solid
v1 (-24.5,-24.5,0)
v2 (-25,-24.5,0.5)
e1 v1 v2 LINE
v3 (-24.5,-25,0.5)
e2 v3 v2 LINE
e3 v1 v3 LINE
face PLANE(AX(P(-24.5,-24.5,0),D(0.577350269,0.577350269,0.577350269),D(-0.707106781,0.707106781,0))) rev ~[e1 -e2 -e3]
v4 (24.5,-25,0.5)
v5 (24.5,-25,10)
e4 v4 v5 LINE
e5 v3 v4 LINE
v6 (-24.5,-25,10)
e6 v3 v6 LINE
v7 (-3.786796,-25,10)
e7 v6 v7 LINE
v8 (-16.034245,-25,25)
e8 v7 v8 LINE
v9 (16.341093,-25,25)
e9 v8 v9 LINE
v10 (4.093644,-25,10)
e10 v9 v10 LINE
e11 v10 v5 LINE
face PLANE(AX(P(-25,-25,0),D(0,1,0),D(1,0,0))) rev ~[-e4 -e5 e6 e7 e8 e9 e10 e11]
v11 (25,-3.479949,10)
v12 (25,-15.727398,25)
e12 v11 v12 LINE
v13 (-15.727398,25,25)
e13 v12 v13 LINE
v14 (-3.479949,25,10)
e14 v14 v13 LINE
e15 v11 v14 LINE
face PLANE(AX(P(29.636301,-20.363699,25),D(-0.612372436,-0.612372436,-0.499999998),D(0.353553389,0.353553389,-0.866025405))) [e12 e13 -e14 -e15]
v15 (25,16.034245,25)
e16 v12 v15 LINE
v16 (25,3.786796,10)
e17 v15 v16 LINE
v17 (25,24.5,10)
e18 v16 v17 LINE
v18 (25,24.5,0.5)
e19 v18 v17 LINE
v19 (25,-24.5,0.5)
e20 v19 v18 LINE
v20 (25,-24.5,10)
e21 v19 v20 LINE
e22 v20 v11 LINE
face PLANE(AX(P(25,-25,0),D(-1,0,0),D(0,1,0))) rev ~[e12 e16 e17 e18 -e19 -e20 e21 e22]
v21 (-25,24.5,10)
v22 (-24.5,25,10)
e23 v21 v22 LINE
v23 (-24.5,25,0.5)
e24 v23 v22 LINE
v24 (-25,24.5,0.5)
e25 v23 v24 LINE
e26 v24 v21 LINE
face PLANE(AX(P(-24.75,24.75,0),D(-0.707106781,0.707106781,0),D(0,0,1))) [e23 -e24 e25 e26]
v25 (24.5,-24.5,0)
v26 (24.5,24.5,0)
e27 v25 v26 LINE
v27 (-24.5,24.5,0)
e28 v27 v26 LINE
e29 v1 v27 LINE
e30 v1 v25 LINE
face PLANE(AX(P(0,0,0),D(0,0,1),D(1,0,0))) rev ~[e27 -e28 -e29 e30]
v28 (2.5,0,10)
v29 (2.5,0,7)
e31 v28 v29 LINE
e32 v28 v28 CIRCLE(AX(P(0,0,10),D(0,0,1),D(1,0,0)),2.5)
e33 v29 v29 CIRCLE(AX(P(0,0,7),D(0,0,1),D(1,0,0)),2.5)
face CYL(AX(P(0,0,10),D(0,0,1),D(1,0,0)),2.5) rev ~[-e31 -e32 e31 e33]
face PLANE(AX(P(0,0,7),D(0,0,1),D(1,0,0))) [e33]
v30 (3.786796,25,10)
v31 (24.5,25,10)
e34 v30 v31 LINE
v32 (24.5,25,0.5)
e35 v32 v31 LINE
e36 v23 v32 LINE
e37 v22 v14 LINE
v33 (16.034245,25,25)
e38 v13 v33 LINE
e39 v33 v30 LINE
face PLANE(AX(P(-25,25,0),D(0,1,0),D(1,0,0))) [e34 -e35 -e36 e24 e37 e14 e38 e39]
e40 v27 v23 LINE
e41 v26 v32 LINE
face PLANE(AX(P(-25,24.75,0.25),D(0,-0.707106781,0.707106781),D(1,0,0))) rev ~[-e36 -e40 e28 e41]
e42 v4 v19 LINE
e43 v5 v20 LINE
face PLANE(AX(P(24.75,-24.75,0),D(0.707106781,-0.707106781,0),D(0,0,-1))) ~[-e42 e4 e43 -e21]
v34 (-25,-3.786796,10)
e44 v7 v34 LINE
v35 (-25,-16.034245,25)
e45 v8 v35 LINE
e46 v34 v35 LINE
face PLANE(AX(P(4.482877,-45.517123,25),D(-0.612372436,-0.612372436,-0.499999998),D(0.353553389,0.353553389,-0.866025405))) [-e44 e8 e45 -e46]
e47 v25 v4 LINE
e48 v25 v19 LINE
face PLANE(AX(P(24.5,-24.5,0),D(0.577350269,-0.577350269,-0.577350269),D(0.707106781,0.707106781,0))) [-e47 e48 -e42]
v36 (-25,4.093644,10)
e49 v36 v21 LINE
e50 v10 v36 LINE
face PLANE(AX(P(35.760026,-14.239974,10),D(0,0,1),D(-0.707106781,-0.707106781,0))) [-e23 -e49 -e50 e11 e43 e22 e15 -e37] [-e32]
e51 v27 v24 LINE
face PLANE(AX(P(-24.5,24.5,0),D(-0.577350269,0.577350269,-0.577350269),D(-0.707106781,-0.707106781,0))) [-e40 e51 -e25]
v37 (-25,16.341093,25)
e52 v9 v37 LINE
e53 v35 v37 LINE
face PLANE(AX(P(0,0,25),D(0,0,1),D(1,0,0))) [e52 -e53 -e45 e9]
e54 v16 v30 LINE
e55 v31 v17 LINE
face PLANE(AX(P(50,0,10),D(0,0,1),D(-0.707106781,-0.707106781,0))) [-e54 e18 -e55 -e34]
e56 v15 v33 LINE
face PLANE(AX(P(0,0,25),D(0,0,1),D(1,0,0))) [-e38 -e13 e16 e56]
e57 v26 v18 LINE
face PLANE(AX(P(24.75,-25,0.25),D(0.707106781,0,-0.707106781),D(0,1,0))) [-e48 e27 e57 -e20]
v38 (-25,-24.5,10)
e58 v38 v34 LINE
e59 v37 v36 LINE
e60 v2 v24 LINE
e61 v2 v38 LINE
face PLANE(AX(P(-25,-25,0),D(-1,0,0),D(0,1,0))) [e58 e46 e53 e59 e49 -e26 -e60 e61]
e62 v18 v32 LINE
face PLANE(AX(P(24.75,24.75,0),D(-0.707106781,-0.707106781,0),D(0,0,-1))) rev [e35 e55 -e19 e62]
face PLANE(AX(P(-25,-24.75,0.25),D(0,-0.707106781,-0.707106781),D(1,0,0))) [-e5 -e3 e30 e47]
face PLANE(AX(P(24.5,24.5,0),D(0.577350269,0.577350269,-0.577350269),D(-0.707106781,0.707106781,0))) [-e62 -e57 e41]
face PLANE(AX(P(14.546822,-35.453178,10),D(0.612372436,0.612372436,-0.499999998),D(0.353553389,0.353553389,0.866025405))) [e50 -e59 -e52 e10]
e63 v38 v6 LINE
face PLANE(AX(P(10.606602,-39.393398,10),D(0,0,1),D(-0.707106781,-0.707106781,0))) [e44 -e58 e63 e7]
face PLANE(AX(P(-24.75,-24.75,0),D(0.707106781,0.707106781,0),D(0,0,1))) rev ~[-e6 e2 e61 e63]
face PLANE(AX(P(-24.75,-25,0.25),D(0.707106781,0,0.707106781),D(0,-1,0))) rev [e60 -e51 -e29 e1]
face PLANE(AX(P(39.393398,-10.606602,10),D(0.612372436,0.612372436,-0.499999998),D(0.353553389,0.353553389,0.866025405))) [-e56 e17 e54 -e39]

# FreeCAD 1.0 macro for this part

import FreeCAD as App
import Part
import Sketcher

V = App.Vector
Q = App.Units.Quantity


def edges_at(feature, points):
    """Names of the edges that pass closest to the given points."""
    edges = feature.Shape.Edges
    near = lambda p: min(range(len(edges)), key=lambda i: edges[i].distToShape(Part.Vertex(*p))[0])
    return sorted({f"Edge{near(p) + 1}" for p in points})

doc = App.newDocument("Part")
body = doc.addObject("PartDesign::Body", "Body")

# Sketch on XY plane
sketch1 = doc.addObject("Sketcher::SketchObject", "Sketch")
body.addObject(sketch1)
sketch1.AttachmentSupport = (doc.XY_Plane, [""])
sketch1.MapMode = "FlatFace"
sketch1.addGeometry(Part.LineSegment(V(-25, 25, 0), V(-25, -25, 0)), False)
sketch1.addGeometry(Part.LineSegment(V(-25, -25, 0), V(25, -25, 0)), False)
sketch1.addGeometry(Part.LineSegment(V(25, -25, 0), V(25, 25, 0)), False)
sketch1.addGeometry(Part.LineSegment(V(25, 25, 0), V(-25, 25, 0)), False)
sketch1.addConstraint(Sketcher.Constraint("Coincident", 0, 2, 1, 1))
sketch1.addConstraint(Sketcher.Constraint("Coincident", 1, 2, 2, 1))
sketch1.addConstraint(Sketcher.Constraint("Coincident", 2, 2, 3, 1))
sketch1.addConstraint(Sketcher.Constraint("Coincident", 3, 2, 0, 1))
sketch1.addConstraint(Sketcher.Constraint("Vertical", 0))
sketch1.addConstraint(Sketcher.Constraint("Horizontal", 1))
sketch1.addConstraint(Sketcher.Constraint("Vertical", 2))
sketch1.addConstraint(Sketcher.Constraint("Horizontal", 3))
sketch1.addConstraint(Sketcher.Constraint("Symmetric", 0, 2, 2, 2, -1, 1))
sketch1.addConstraint(Sketcher.Constraint("Equal", 3, 0))
sketch1.addConstraint(Sketcher.Constraint("DistanceX", 1, 1, 1, 2, 50.0))
pad1 = doc.addObject("PartDesign::Pad", "Pad")
body.addObject(pad1)
pad1.Profile = sketch1
pad1.Length = 25

# Sketch on an angled plane
sketch2 = doc.addObject("Sketcher::SketchObject", "Sketch001")
body.addObject(sketch2)
sketch2.Placement = App.Placement(V(25, -25, 0), App.Rotation(V(-0.707106781, -0.707106781, 0), V(0, 0, 0.999999999), V(-0.707106781, 0.707106781, 0), "ZXY"))
sketch2.addGeometry(Part.LineSegment(V(35.355339, 25, 0), V(29.015593, 25, 0)), False)
sketch2.addGeometry(Part.LineSegment(V(29.015593, 25, 0), V(20.355339, 10, 0)), False)
sketch2.addGeometry(Part.LineSegment(V(20.355339, 10, 0), V(35.355339, 10, 0)), False)
sketch2.addGeometry(Part.LineSegment(V(35.355339, 10, 0), V(35.355339, 25, 0)), False)
sketch2.addGeometry(Part.LineSegment(V(-20.355339, 10, 0), V(-29.015593, 25, 0)), False)
sketch2.addGeometry(Part.LineSegment(V(-29.015593, 25, 0), V(-35.355339, 25, 0)), False)
sketch2.addGeometry(Part.LineSegment(V(-35.355339, 25, 0), V(-35.355339, 10, 0)), False)
sketch2.addGeometry(Part.LineSegment(V(-35.355339, 10, 0), V(-20.355339, 10, 0)), False)
sketch2.addGeometry(Part.LineSegment(V(6.122772, 25, 0), V(-6.55672, 25, 0)), False)
sketch2.addGeometry(Part.LineSegment(V(-6.55672, 25, 0), V(-15.216974, 10, 0)), False)
sketch2.addGeometry(Part.LineSegment(V(-15.216974, 10, 0), V(14.783026, 10, 0)), False)
sketch2.addGeometry(Part.LineSegment(V(14.783026, 10, 0), V(6.122772, 25, 0)), False)
sketch2.addConstraint(Sketcher.Constraint("Coincident", 0, 2, 1, 1))
sketch2.addConstraint(Sketcher.Constraint("Coincident", 1, 2, 2, 1))
sketch2.addConstraint(Sketcher.Constraint("Coincident", 2, 2, 3, 1))
sketch2.addConstraint(Sketcher.Constraint("Coincident", 3, 2, 0, 1))
sketch2.addConstraint(Sketcher.Constraint("Coincident", 4, 2, 5, 1))
sketch2.addConstraint(Sketcher.Constraint("Coincident", 5, 2, 6, 1))
sketch2.addConstraint(Sketcher.Constraint("Coincident", 6, 2, 7, 1))
sketch2.addConstraint(Sketcher.Constraint("Coincident", 7, 2, 4, 1))
sketch2.addConstraint(Sketcher.Constraint("Coincident", 8, 2, 9, 1))
sketch2.addConstraint(Sketcher.Constraint("Coincident", 9, 2, 10, 1))
sketch2.addConstraint(Sketcher.Constraint("Coincident", 10, 2, 11, 1))
sketch2.addConstraint(Sketcher.Constraint("Coincident", 11, 2, 8, 1))
sketch2.addConstraint(Sketcher.Constraint("Horizontal", 0))
sketch2.addConstraint(Sketcher.Constraint("Horizontal", 2))
sketch2.addConstraint(Sketcher.Constraint("Vertical", 3))
sketch2.addConstraint(Sketcher.Constraint("Horizontal", 5))
sketch2.addConstraint(Sketcher.Constraint("Vertical", 6))
sketch2.addConstraint(Sketcher.Constraint("Horizontal", 7))
sketch2.addConstraint(Sketcher.Constraint("Horizontal", 8))
sketch2.addConstraint(Sketcher.Constraint("Horizontal", 10))
sketch2.addConstraint(Sketcher.Constraint("Symmetric", 0, 2, 4, 2, -2))
sketch2.addConstraint(Sketcher.Constraint("Symmetric", 2, 2, 6, 2, -2))
sketch2.addConstraint(Sketcher.Constraint("Parallel", 1, 9))
sketch2.addConstraint(Sketcher.Constraint("Parallel", 4, 11))
sketch2.addConstraint(Sketcher.Constraint("Horizontal", 5, 2, 8, 2))
sketch2.addConstraint(Sketcher.Constraint("Horizontal", 7, 2, 9, 2))
sketch2.addConstraint(Sketcher.Constraint("Equal", 2, 7))
sketch2.addConstraint(Sketcher.Constraint("Equal", 7, 3))
sketch2.addConstraint(Sketcher.Constraint("DistanceX", 2, 1, 2, 2, 15.0))
sketch2.addConstraint(Sketcher.Constraint("DistanceX", 10, 1, 10, 2, 30.0))
sketch2.addConstraint(Sketcher.Constraint("Angle", 1, Q("-120 deg")))
sketch2.addConstraint(Sketcher.Constraint("DistanceY", -1, 1, 0, 2, 25.0))
sketch2.addConstraint(Sketcher.Constraint("DistanceX", -1, 1, 1, 2, 20.355339))
sketch2.addConstraint(Sketcher.Constraint("DistanceX", 8, 2, -1, 1, 6.55672))
pocket1 = doc.addObject("PartDesign::Pocket", "Pocket")
body.addObject(pocket1)
pocket1.Profile = sketch2
pocket1.Type = "ThroughAll"
pocket1.Reversed = True
doc.recompute()

chamfer = doc.addObject("PartDesign::Chamfer", "Chamfer")
body.addObject(chamfer)
chamfer.Base = (pocket1, edges_at(pocket1, [
    (-25, 25, 5),
    (25, 25, 5),
    (25, -25, 5),
    (-25, -25, 5),
    (0, -25, 0),
    (25, 0, 0),
    (0, 25, 0),
    (-25, 0, 0),
]))
chamfer.Size = 0.5

# Sketch on XY plane
sketch3 = doc.addObject("Sketcher::SketchObject", "Sketch002")
body.addObject(sketch3)
sketch3.AttachmentSupport = (doc.XY_Plane, [""])
sketch3.MapMode = "FlatFace"
sketch3.AttachmentOffset = App.Placement(V(0, 0, 10), App.Rotation())
sketch3.addGeometry(Part.Circle(V(0, 0, 0), V(0, 0, 1), 2.5), False)
sketch3.addConstraint(Sketcher.Constraint("Coincident", 0, 3, -1, 1))
sketch3.addConstraint(Sketcher.Constraint("Diameter", 0, 5.0))
pocket2 = doc.addObject("PartDesign::Pocket", "Pocket001")
body.addObject(pocket2)
pocket2.Profile = sketch3
pocket2.Length = 3
body2 = doc.addObject("PartDesign::Body", "Body001")

# Sketch on XY plane
sketch4 = doc.addObject("Sketcher::SketchObject", "Sketch003")
body2.addObject(sketch4)
sketch4.AttachmentSupport = (doc.getObject("XY_Plane001"), [""])
sketch4.MapMode = "FlatFace"
sketch4.AttachmentOffset = App.Placement(V(0, 0, 10), App.Rotation())
sketch4.addGeometry(Part.LineSegment(V(-25, 25, 0), V(-25, -25, 0)), False)
sketch4.addGeometry(Part.LineSegment(V(-25, -25, 0), V(25, -25, 0)), False)
sketch4.addGeometry(Part.LineSegment(V(25, -25, 0), V(25, 25, 0)), False)
sketch4.addGeometry(Part.LineSegment(V(25, 25, 0), V(-25, 25, 0)), False)
sketch4.addConstraint(Sketcher.Constraint("Coincident", 0, 2, 1, 1))
sketch4.addConstraint(Sketcher.Constraint("Coincident", 1, 2, 2, 1))
sketch4.addConstraint(Sketcher.Constraint("Coincident", 2, 2, 3, 1))
sketch4.addConstraint(Sketcher.Constraint("Coincident", 3, 2, 0, 1))
sketch4.addConstraint(Sketcher.Constraint("Vertical", 0))
sketch4.addConstraint(Sketcher.Constraint("Horizontal", 1))
sketch4.addConstraint(Sketcher.Constraint("Vertical", 2))
sketch4.addConstraint(Sketcher.Constraint("Horizontal", 3))
sketch4.addConstraint(Sketcher.Constraint("Symmetric", 0, 2, 2, 2, -1, 1))
sketch4.addConstraint(Sketcher.Constraint("Equal", 3, 0))
sketch4.addConstraint(Sketcher.Constraint("DistanceX", 1, 1, 1, 2, 50.0))
pad2 = doc.addObject("PartDesign::Pad", "Pad001")
body2.addObject(pad2)
pad2.Profile = sketch4
pad2.Length = 25
doc.recompute()

body3 = doc.addObject("PartDesign::Body", "Body002")
body3.BaseFeature = body
boolean = doc.addObject("PartDesign::Boolean", "Boolean")
body2.addObject(boolean)
boolean.Type = "Cut"
boolean.addObjects([body3])
doc.recompute()
body4 = doc.addObject("PartDesign::Body", "Body003")
doc.recompute()

body2.Placement = App.Placement(V(55, 0, 0), App.Rotation(V(0, 0, 1), 0))
boolean2 = doc.addObject("PartDesign::Boolean", "Boolean001")
body4.addObject(boolean2)
boolean2.Type = "Fuse"
boolean2.addObjects([body2])

doc.recompute()
